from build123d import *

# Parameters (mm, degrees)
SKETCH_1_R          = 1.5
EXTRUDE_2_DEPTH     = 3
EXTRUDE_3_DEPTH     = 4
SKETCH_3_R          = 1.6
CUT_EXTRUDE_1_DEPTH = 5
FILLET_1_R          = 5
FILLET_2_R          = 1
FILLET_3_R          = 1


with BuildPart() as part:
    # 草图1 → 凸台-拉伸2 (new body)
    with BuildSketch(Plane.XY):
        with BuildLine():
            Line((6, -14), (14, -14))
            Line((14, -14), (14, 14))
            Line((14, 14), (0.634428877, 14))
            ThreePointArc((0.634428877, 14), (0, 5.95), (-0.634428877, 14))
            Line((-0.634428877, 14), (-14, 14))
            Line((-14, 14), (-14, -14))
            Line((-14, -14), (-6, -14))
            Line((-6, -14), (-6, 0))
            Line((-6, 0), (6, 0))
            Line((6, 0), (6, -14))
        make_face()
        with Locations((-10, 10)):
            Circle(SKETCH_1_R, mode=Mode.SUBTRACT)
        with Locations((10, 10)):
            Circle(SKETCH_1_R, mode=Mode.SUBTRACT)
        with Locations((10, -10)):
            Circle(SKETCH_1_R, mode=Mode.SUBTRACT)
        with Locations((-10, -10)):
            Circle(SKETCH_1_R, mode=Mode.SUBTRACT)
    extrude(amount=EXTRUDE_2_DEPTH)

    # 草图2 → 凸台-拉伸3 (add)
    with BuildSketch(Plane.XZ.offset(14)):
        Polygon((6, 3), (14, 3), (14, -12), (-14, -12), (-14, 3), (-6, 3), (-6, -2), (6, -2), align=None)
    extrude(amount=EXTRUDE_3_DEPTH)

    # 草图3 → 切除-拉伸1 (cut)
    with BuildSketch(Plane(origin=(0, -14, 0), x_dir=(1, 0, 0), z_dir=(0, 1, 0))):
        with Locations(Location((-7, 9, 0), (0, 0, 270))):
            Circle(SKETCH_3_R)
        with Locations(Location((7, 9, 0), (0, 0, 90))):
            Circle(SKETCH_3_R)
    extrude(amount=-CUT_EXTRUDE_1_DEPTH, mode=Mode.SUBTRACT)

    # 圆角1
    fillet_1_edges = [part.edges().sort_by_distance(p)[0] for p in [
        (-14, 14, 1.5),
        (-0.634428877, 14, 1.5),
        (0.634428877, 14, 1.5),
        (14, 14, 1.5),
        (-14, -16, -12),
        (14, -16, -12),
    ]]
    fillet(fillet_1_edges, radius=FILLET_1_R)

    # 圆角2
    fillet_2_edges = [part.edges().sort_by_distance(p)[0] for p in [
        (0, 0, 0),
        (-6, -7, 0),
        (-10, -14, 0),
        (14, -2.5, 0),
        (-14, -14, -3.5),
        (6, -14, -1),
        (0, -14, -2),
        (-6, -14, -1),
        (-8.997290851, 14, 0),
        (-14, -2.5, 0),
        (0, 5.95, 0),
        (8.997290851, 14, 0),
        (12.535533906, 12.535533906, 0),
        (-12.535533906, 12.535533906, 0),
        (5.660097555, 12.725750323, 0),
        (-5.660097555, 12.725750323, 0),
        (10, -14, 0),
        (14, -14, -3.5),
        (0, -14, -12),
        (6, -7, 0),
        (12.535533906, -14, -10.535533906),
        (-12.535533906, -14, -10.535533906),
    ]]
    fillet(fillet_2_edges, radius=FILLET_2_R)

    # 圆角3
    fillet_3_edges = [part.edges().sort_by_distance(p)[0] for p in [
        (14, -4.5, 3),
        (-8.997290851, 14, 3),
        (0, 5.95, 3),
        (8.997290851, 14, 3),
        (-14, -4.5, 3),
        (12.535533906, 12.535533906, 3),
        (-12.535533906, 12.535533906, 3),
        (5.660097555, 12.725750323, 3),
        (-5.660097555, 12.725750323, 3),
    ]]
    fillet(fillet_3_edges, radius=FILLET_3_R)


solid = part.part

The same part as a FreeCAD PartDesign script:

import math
import FreeCAD as App
import Part
import Sketcher
from FreeCAD import Vector
Q = App.Units.Quantity


def edges_at(feature, points):
    """Names of the edges that pass closest to the given points."""
    edges = feature.Shape.Edges
    near = lambda p: min(range(len(edges)), key=lambda i: edges[i].distToShape(Part.Vertex(*p))[0])
    return sorted({f"Edge{near(p) + 1}" for p in points})

doc = App.newDocument("Part")
body = doc.addObject("PartDesign::Body", "Body")

sketch1 = body.newObject("Sketcher::SketchObject", "Sketch")
sketch1.AttachmentSupport = (doc.getObject("XY_Plane"), [""])
sketch1.MapMode = "FlatFace"
sketch1.addGeometry(Part.LineSegment(Vector(6, -14, 0), Vector(14, -14, 0)), False)
sketch1.addGeometry(Part.LineSegment(Vector(14, -14, 0), Vector(14, 14, 0)), False)
sketch1.addGeometry(Part.LineSegment(Vector(14, 14, 0), Vector(0.634429, 14, 0)), False)
sketch1.addGeometry(Part.ArcOfCircle(Part.Circle(Vector(0, 10, 0), Vector(0, 0, 1), 4.05), math.radians(99.012451), math.radians(440.987549)), False)
sketch1.addGeometry(Part.LineSegment(Vector(-0.634429, 14, 0), Vector(-14, 14, 0)), False)
sketch1.addGeometry(Part.LineSegment(Vector(-14, 14, 0), Vector(-14, -14, 0)), False)
sketch1.addGeometry(Part.LineSegment(Vector(-14, -14, 0), Vector(-6, -14, 0)), False)
sketch1.addGeometry(Part.LineSegment(Vector(-6, -14, 0), Vector(-6, 0, 0)), False)
sketch1.addGeometry(Part.LineSegment(Vector(-6, 0, 0), Vector(6, 0, 0)), False)
sketch1.addGeometry(Part.LineSegment(Vector(6, 0, 0), Vector(6, -14, 0)), False)
sketch1.addGeometry(Part.Circle(Vector(-10, -10, 0), Vector(0, 0, 1), 1.5), False)
sketch1.addGeometry(Part.Circle(Vector(10, -10, 0), Vector(0, 0, 1), 1.5), False)
sketch1.addGeometry(Part.Circle(Vector(-10, 10, 0), Vector(0, 0, 1), 1.5), False)
sketch1.addGeometry(Part.Circle(Vector(10, 10, 0), Vector(0, 0, 1), 1.5), False)
sketch1.addConstraint(Sketcher.Constraint("Coincident", 0, 2, 1, 1))
sketch1.addConstraint(Sketcher.Constraint("Coincident", 1, 2, 2, 1))
sketch1.addConstraint(Sketcher.Constraint("Coincident", 2, 2, 3, 2))
sketch1.addConstraint(Sketcher.Constraint("Coincident", 3, 1, 4, 1))
sketch1.addConstraint(Sketcher.Constraint("Coincident", 4, 2, 5, 1))
sketch1.addConstraint(Sketcher.Constraint("Coincident", 5, 2, 6, 1))
sketch1.addConstraint(Sketcher.Constraint("Coincident", 6, 2, 7, 1))
sketch1.addConstraint(Sketcher.Constraint("Coincident", 7, 2, 8, 1))
sketch1.addConstraint(Sketcher.Constraint("Coincident", 8, 2, 9, 1))
sketch1.addConstraint(Sketcher.Constraint("Coincident", 9, 2, 0, 1))
sketch1.addConstraint(Sketcher.Constraint("Horizontal", 0))
sketch1.addConstraint(Sketcher.Constraint("Vertical", 1))
sketch1.addConstraint(Sketcher.Constraint("Horizontal", 2))
sketch1.addConstraint(Sketcher.Constraint("Horizontal", 4))
sketch1.addConstraint(Sketcher.Constraint("Vertical", 5))
sketch1.addConstraint(Sketcher.Constraint("Horizontal", 6))
sketch1.addConstraint(Sketcher.Constraint("Vertical", 7))
sketch1.addConstraint(Sketcher.Constraint("Horizontal", 8))
sketch1.addConstraint(Sketcher.Constraint("Vertical", 9))
sketch1.addConstraint(Sketcher.Constraint("Equal", 10, 11))
sketch1.addConstraint(Sketcher.Constraint("Equal", 11, 12))
sketch1.addConstraint(Sketcher.Constraint("Equal", 12, 13))
sketch1.addConstraint(Sketcher.Constraint("Symmetric", 11, 3, 12, 3, -1, 1))
sketch1.addConstraint(Sketcher.Constraint("Symmetric", 10, 3, 13, 3, -1, 1))
sketch1.addConstraint(Sketcher.Constraint("Symmetric", 0, 2, 4, 2, -1, 1))
sketch1.addConstraint(Sketcher.Constraint("Symmetric", 7, 2, 8, 2, -1, 1))
sketch1.addConstraint(Sketcher.Constraint("Symmetric", 10, 3, 11, 3, -2))
sketch1.addConstraint(Sketcher.Constraint("Symmetric", 2, 2, 3, 1, -2))
sketch1.addConstraint(Sketcher.Constraint("Horizontal", 3, 3, 12, 3))
sketch1.addConstraint(Sketcher.Constraint("Horizontal", 0, 2, 5, 2))
sketch1.addConstraint(Sketcher.Constraint("Diameter", 10, Q("3 mm")))
sketch1.addConstraint(Sketcher.Constraint("DistanceX", 0, 1, 0, 2, Q("8 mm")))
sketch1.addConstraint(Sketcher.Constraint("DistanceX", 8, 1, 8, 2, Q("12 mm")))
sketch1.addConstraint(Sketcher.Constraint("DistanceY", 1, 1, 1, 2, Q("28 mm")))
sketch1.addConstraint(Sketcher.Constraint("Radius", 3, Q("4.05 mm")))
sketch1.addConstraint(Sketcher.Constraint("DistanceY", -1, 1, 3, 3, Q("10 mm")))
sketch1.addConstraint(Sketcher.Constraint("DistanceX", 10, 3, -1, 1, Q("10 mm")))
pad1 = body.newObject("PartDesign::Pad", "Pad")
pad1.Profile = sketch1
pad1.Length = 3

sketch2 = body.newObject("Sketcher::SketchObject", "Sketch001")
sketch2.AttachmentSupport = (doc.getObject("XZ_Plane"), [""])
sketch2.MapMode = "FlatFace"
sketch2.AttachmentOffset = App.Placement(Vector(0, 0, 14), App.Rotation())
sketch2.addGeometry(Part.LineSegment(Vector(14, 3, 0), Vector(6, 3, 0)), False)
sketch2.addGeometry(Part.LineSegment(Vector(6, 3, 0), Vector(6, -2, 0)), False)
sketch2.addGeometry(Part.LineSegment(Vector(6, -2, 0), Vector(-6, -2, 0)), False)
sketch2.addGeometry(Part.LineSegment(Vector(-6, -2, 0), Vector(-6, 3, 0)), False)
sketch2.addGeometry(Part.LineSegment(Vector(-6, 3, 0), Vector(-14, 3, 0)), False)
sketch2.addGeometry(Part.LineSegment(Vector(-14, 3, 0), Vector(-14, -12, 0)), False)
sketch2.addGeometry(Part.LineSegment(Vector(-14, -12, 0), Vector(14, -12, 0)), False)
sketch2.addGeometry(Part.LineSegment(Vector(14, -12, 0), Vector(14, 3, 0)), False)
sketch2.addConstraint(Sketcher.Constraint("Coincident", 0, 2, 1, 1))
sketch2.addConstraint(Sketcher.Constraint("Coincident", 1, 2, 2, 1))
sketch2.addConstraint(Sketcher.Constraint("Coincident", 2, 2, 3, 1))
sketch2.addConstraint(Sketcher.Constraint("Coincident", 3, 2, 4, 1))
sketch2.addConstraint(Sketcher.Constraint("Coincident", 4, 2, 5, 1))
sketch2.addConstraint(Sketcher.Constraint("Coincident", 5, 2, 6, 1))
sketch2.addConstraint(Sketcher.Constraint("Coincident", 6, 2, 7, 1))
sketch2.addConstraint(Sketcher.Constraint("Coincident", 7, 2, 0, 1))
sketch2.addConstraint(Sketcher.Constraint("Horizontal", 0))
sketch2.addConstraint(Sketcher.Constraint("Vertical", 1))
sketch2.addConstraint(Sketcher.Constraint("Horizontal", 2))
sketch2.addConstraint(Sketcher.Constraint("Vertical", 3))
sketch2.addConstraint(Sketcher.Constraint("Horizontal", 4))
sketch2.addConstraint(Sketcher.Constraint("Vertical", 5))
sketch2.addConstraint(Sketcher.Constraint("Horizontal", 6))
sketch2.addConstraint(Sketcher.Constraint("Vertical", 7))
sketch2.addConstraint(Sketcher.Constraint("Symmetric", 0, 2, 3, 2, -2))
sketch2.addConstraint(Sketcher.Constraint("Equal", 0, 4))
sketch2.addConstraint(Sketcher.Constraint("DistanceX", 0, 2, 0, 1, Q("8 mm")))
sketch2.addConstraint(Sketcher.Constraint("DistanceX", 2, 2, 2, 1, Q("12 mm")))
sketch2.addConstraint(Sketcher.Constraint("DistanceY", 1, 2, 1, 1, Q("5 mm")))
sketch2.addConstraint(Sketcher.Constraint("DistanceY", 5, 2, 5, 1, Q("15 mm")))
sketch2.addConstraint(Sketcher.Constraint("DistanceY", -1, 1, 0, 2, Q("3 mm")))
pad2 = body.newObject("PartDesign::Pad", "Pad001")
pad2.Profile = sketch2
pad2.Length = 4

sketch3 = body.newObject("Sketcher::SketchObject", "Sketch002")
sketch3.AttachmentSupport = (doc.getObject("XZ_Plane"), [""])
sketch3.MapMode = "FlatFace"
sketch3.AttachmentOffset = App.Placement(Vector(0, 0, 14), App.Rotation())
sketch3.addGeometry(Part.Circle(Vector(-7, -9, 0), Vector(0, 0, 1), 1.6), False)
sketch3.addGeometry(Part.Circle(Vector(7, -9, 0), Vector(0, 0, 1), 1.6), False)
sketch3.addConstraint(Sketcher.Constraint("Equal", 0, 1))
sketch3.addConstraint(Sketcher.Constraint("Symmetric", 0, 3, 1, 3, -2))
sketch3.addConstraint(Sketcher.Constraint("Diameter", 0, Q("3.2 mm")))
sketch3.addConstraint(Sketcher.Constraint("DistanceX", 0, 3, -1, 1, Q("7 mm")))
sketch3.addConstraint(Sketcher.Constraint("DistanceY", 0, 3, -1, 1, Q("9 mm")))
pocket1 = body.newObject("PartDesign::Pocket", "Pocket")
pocket1.Profile = sketch3
pocket1.Length = 5
pocket1.Reversed = True
doc.recompute()

fillet = body.newObject("PartDesign::Fillet", "Fillet")
fillet.Base = (pocket1, edges_at(pocket1, [
    (-14, 14, 1.5),
    (-0.634, 14, 1.5),
    (0.634, 14, 1.5),
    (14, 14, 1.5),
    (-14, -16, -12),
    (14, -16, -12),
]))
fillet.Radius = 5
doc.recompute()

fillet2 = body.newObject("PartDesign::Fillet", "Fillet001")
fillet2.Base = (fillet, edges_at(fillet, [
    (0, 0, 0),
    (-6, -7, 0),
    (-10, -14, 0),
    (14, -2.5, 0),
    (-14, -14, -3.5),
    (6, -14, -1),
    (0, -14, -2),
    (-6, -14, -1),
    (-8.997, 14, 0),
    (-14, -2.5, 0),
    (0, 5.95, 0),
    (8.997, 14, 0),
    (12.536, 12.536, 0),
    (-12.536, 12.536, 0),
    (5.66, 12.726, 0),
    (-5.66, 12.726, 0),
    (10, -14, 0),
    (14, -14, -3.5),
    (0, -14, -12),
    (6, -7, 0),
    (12.536, -14, -10.536),
    (-12.536, -14, -10.536),
]))
fillet2.Radius = 1
doc.recompute()

fillet3 = body.newObject("PartDesign::Fillet", "Fillet002")
fillet3.Base = (fillet2, edges_at(fillet2, [
    (14, -4.5, 3),
    (-8.997, 14, 3),
    (0, 5.95, 3),
    (8.997, 14, 3),
    (-14, -4.5, 3),
    (12.536, 12.536, 3),
    (-12.536, 12.536, 3),
    (5.66, 12.726, 3),
    (-5.66, 12.726, 3),
]))
fillet3.Radius = 1

doc.recompute()
